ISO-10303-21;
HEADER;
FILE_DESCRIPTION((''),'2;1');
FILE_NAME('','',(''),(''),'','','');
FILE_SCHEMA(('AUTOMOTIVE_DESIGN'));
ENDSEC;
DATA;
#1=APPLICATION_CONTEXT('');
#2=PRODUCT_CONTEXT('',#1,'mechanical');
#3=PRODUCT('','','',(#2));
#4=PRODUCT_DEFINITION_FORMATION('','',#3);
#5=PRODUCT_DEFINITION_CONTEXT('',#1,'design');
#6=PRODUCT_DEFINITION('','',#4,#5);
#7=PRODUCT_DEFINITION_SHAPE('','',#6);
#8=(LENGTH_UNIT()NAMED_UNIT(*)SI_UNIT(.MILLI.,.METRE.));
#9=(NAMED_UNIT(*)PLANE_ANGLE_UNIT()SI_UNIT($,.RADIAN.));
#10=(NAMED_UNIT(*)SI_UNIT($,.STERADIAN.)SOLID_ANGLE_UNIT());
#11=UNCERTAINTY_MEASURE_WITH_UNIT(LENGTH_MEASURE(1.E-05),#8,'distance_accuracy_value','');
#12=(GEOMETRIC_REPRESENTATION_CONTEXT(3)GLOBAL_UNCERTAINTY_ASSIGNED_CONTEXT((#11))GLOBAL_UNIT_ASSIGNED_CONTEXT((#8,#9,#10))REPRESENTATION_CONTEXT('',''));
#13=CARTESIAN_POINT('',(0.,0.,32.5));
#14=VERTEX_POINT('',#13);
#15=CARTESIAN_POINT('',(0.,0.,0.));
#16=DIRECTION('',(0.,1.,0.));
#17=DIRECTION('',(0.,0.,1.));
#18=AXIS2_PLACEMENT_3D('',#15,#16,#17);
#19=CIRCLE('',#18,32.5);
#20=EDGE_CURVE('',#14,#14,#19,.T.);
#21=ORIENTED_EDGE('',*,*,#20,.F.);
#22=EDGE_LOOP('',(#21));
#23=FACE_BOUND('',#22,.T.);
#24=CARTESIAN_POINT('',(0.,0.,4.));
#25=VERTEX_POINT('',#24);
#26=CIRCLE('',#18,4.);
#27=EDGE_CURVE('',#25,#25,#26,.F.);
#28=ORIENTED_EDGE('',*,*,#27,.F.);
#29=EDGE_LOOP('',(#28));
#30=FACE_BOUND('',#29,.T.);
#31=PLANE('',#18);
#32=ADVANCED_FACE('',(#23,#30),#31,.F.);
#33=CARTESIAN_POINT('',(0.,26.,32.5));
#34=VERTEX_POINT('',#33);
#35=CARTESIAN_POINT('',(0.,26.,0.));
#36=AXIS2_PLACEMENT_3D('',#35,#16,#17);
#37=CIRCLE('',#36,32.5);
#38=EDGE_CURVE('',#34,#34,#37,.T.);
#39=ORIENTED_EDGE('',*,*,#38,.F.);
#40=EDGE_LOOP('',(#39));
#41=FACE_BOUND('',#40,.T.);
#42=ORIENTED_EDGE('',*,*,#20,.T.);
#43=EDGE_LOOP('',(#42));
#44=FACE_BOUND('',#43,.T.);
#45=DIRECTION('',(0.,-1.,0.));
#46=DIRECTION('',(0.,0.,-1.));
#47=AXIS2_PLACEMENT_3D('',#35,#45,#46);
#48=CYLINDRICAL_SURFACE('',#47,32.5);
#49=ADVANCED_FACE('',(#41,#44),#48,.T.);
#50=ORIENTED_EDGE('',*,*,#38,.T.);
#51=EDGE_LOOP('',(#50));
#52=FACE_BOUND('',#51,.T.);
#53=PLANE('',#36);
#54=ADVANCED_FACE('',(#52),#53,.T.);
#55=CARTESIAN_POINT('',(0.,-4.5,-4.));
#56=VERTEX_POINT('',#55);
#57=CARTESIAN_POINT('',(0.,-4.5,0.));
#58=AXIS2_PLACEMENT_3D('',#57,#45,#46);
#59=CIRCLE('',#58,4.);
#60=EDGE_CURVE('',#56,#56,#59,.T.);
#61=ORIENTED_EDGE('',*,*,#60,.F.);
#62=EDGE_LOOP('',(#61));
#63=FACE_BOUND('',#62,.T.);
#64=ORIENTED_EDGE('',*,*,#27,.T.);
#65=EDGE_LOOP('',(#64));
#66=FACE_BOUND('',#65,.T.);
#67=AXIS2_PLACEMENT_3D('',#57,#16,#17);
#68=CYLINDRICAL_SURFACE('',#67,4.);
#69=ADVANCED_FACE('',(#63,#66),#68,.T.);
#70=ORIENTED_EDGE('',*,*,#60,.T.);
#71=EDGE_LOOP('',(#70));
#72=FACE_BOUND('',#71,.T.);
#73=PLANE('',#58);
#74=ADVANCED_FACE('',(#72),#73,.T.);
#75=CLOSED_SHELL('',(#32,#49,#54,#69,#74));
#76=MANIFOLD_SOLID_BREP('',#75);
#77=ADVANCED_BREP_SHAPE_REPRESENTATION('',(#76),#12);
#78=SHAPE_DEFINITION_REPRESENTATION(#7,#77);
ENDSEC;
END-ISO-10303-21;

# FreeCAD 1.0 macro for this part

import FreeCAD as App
import Part
import Sketcher
Q = App.Units.Quantity

doc = App.newDocument("Part")
params = doc.addObject("Spreadsheet::Sheet", "Params")
for row, (alias, value) in enumerate([
    ("sketch1_diameter", "65 mm"),
    ("pad1_length", "26 mm"),
    ("sketch2_diameter", "8 mm"),
    ("pad2_length", "4.5 mm"),
], start=1):
    params.set(f"A{row}", alias)
    params.set(f"B{row}", "=" + value)
    params.setAlias(f"B{row}", alias)

body = doc.addObject("PartDesign::Body", "Body")

# Sketch on XZ plane
sketch1 = body.newObject("Sketcher::SketchObject", "Sketch")
sketch1.AttachmentSupport = (doc.getObject("XZ_Plane"), [""])
sketch1.MapMode = "FlatFace"
sketch1.addGeometry(Part.Circle(App.Vector(0, 0, 0), App.Vector(0, 0, 1), 32.5), False)
sketch1.addConstraint(Sketcher.Constraint("Coincident", 0, 3, -1, 1))
sketch1.addConstraint(Sketcher.Constraint("Diameter", 0, Q("65 mm")))
sketch1.setExpression("Constraints[1]", "Params.sketch1_diameter")
pad1 = body.newObject("PartDesign::Pad", "Pad")
pad1.Profile = sketch1
pad1.setExpression("Length", "Params.pad1_length")
pad1.Reversed = True

# Sketch on XZ plane
sketch2 = body.newObject("Sketcher::SketchObject", "Sketch001")
sketch2.AttachmentSupport = (doc.getObject("XZ_Plane"), [""])
sketch2.MapMode = "FlatFace"
sketch2.addGeometry(Part.Circle(App.Vector(0, 0, 0), App.Vector(0, 0, 1), 4), False)
sketch2.addConstraint(Sketcher.Constraint("Coincident", 0, 3, -1, 1))
sketch2.addConstraint(Sketcher.Constraint("Diameter", 0, Q("8 mm")))
sketch2.setExpression("Constraints[1]", "Params.sketch2_diameter")
pad2 = body.newObject("PartDesign::Pad", "Pad001")
pad2.Profile = sketch2
pad2.setExpression("Length", "Params.pad2_length")

doc.recompute()
